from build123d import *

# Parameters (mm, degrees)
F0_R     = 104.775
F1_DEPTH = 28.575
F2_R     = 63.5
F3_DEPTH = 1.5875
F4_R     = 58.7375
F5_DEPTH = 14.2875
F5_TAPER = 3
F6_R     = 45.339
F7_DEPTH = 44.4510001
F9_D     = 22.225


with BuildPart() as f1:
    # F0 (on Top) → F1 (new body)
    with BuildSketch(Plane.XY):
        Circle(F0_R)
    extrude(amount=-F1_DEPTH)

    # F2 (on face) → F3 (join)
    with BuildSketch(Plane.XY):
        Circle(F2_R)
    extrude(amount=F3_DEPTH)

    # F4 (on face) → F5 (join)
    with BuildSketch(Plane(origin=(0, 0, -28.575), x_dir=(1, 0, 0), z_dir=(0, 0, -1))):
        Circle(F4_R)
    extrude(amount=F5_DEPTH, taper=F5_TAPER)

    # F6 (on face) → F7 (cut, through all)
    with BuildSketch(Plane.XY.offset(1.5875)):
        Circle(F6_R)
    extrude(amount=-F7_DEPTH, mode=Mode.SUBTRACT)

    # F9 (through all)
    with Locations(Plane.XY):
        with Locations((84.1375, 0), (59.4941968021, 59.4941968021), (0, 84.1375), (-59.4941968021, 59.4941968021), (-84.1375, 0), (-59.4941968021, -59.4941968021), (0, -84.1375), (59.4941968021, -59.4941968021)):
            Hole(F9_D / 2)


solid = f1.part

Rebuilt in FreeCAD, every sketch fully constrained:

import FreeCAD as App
import Part
import Sketcher
Q = App.Units.Quantity

doc = App.newDocument("Part")
params = doc.addObject("Spreadsheet::Sheet", "Params")
for row, (alias, value) in enumerate([
    ("sketch1_diameter", "8.25 in"),
    ("pad1_length", "1.125 in"),
    ("sketch2_diameter", "5 in"),
    ("pad2_length", "0.0625 in"),
    ("sketch3_diameter", "4.625 in"),
    ("pad3_length", "0.5625 in"),
    ("pad3_taper", "-3 deg"),
    ("sketch4_diameter", "3.57 in"),
    ("sketch5_diameter", "0.875 in"),
    ("hole_diameter", "0.875 in"),
], start=1):
    params.set(f"A{row}", alias)
    params.set(f"B{row}", "=" + value)
    params.setAlias(f"B{row}", alias)

body = doc.addObject("PartDesign::Body", "Body")

# Sketch on XY plane
sketch1 = body.newObject("Sketcher::SketchObject", "Sketch")
sketch1.AttachmentSupport = (doc.getObject("XY_Plane"), [""])
sketch1.MapMode = "FlatFace"
sketch1.addGeometry(Part.Circle(App.Vector(0, 0, 0), App.Vector(0, 0, 1), 105), False)
sketch1.addConstraint(Sketcher.Constraint("Coincident", 0, 3, -1, 1))
sketch1.addConstraint(Sketcher.Constraint("Diameter", 0, Q("8.25 in")))
sketch1.setExpression("Constraints[1]", "Params.sketch1_diameter")
pad1 = body.newObject("PartDesign::Pad", "Pad")
pad1.Profile = sketch1
pad1.setExpression("Length", "Params.pad1_length")
pad1.Reversed = True

# Sketch on XY plane
sketch2 = body.newObject("Sketcher::SketchObject", "Sketch001")
sketch2.AttachmentSupport = (doc.getObject("XY_Plane"), [""])
sketch2.MapMode = "FlatFace"
sketch2.addGeometry(Part.Circle(App.Vector(0, 0, 0), App.Vector(0, 0, 1), 64), False)
sketch2.addConstraint(Sketcher.Constraint("Coincident", 0, 3, -1, 1))
sketch2.addConstraint(Sketcher.Constraint("Diameter", 0, Q("5 in")))
sketch2.setExpression("Constraints[1]", "Params.sketch2_diameter")
pad2 = body.newObject("PartDesign::Pad", "Pad001")
pad2.Profile = sketch2
pad2.setExpression("Length", "Params.pad2_length")

# Sketch on XY plane
sketch3 = body.newObject("Sketcher::SketchObject", "Sketch002")
sketch3.AttachmentSupport = (doc.getObject("XY_Plane"), [""])
sketch3.MapMode = "FlatFace"
sketch3.AttachmentOffset = App.Placement(App.Vector(0, 0, -1.125 * 25.4), App.Rotation())
sketch3.addGeometry(Part.Circle(App.Vector(0, 0, 0), App.Vector(0, 0, 1), 59), False)
sketch3.addConstraint(Sketcher.Constraint("Coincident", 0, 3, -1, 1))
sketch3.addConstraint(Sketcher.Constraint("Diameter", 0, Q("4.625 in")))
sketch3.setExpression("Constraints[1]", "Params.sketch3_diameter")
pad3 = body.newObject("PartDesign::Pad", "Pad002")
pad3.Profile = sketch3
pad3.setExpression("Length", "Params.pad3_length")
pad3.Reversed = True
pad3.setExpression("TaperAngle", "Params.pad3_taper")

# Sketch on XY plane
sketch4 = body.newObject("Sketcher::SketchObject", "Sketch003")
sketch4.AttachmentSupport = (doc.getObject("XY_Plane"), [""])
sketch4.MapMode = "FlatFace"
sketch4.AttachmentOffset = App.Placement(App.Vector(0, 0, 0.0625 * 25.4), App.Rotation())
sketch4.addGeometry(Part.Circle(App.Vector(0, 0, 0), App.Vector(0, 0, 1), 45), False)
sketch4.addConstraint(Sketcher.Constraint("Coincident", 0, 3, -1, 1))
sketch4.addConstraint(Sketcher.Constraint("Diameter", 0, Q("3.57 in")))
sketch4.setExpression("Constraints[1]", "Params.sketch4_diameter")
pocket1 = body.newObject("PartDesign::Pocket", "Pocket")
pocket1.Profile = sketch4
pocket1.Type = "ThroughAll"

# Sketch on XY plane
sketch5 = body.newObject("Sketcher::SketchObject", "Sketch004")
sketch5.AttachmentSupport = (doc.getObject("XY_Plane"), [""])
sketch5.MapMode = "FlatFace"
sketch5.addGeometry(Part.Circle(App.Vector(84, 0, 0), App.Vector(0, 0, 1), 11), False)
sketch5.addGeometry(Part.Circle(App.Vector(59, 59, 0), App.Vector(0, 0, 1), 11), False)
sketch5.addGeometry(Part.Circle(App.Vector(0, 84, 0), App.Vector(0, 0, 1), 11), False)
sketch5.addGeometry(Part.Circle(App.Vector(-59, 59, 0), App.Vector(0, 0, 1), 11), False)
sketch5.addGeometry(Part.Circle(App.Vector(-84, 0, 0), App.Vector(0, 0, 1), 11), False)
sketch5.addGeometry(Part.Circle(App.Vector(-59, -59, 0), App.Vector(0, 0, 1), 11), False)
sketch5.addGeometry(Part.Circle(App.Vector(0, -84, 0), App.Vector(0, 0, 1), 11), False)
sketch5.addGeometry(Part.Circle(App.Vector(59, -59, 0), App.Vector(0, 0, 1), 11), False)
sketch5.addConstraint(Sketcher.Constraint("Equal", 0, 1))
sketch5.addConstraint(Sketcher.Constraint("Equal", 1, 2))
sketch5.addConstraint(Sketcher.Constraint("Equal", 2, 3))
sketch5.addConstraint(Sketcher.Constraint("Equal", 3, 4))
sketch5.addConstraint(Sketcher.Constraint("Equal", 4, 5))
sketch5.addConstraint(Sketcher.Constraint("Equal", 5, 6))
sketch5.addConstraint(Sketcher.Constraint("Equal", 6, 7))
sketch5.addConstraint(Sketcher.Constraint("Symmetric", 0, 3, 4, 3, -1, 1))
sketch5.addConstraint(Sketcher.Constraint("Symmetric", 1, 3, 5, 3, -1, 1))
sketch5.addConstraint(Sketcher.Constraint("Symmetric", 2, 3, 6, 3, -1, 1))
sketch5.addConstraint(Sketcher.Constraint("Symmetric", 3, 3, 7, 3, -1, 1))
sketch5.addConstraint(Sketcher.Constraint("Symmetric", 1, 3, 3, 3, -2))
sketch5.addConstraint(Sketcher.Constraint("PointOnObject", 0, 3, -1))
sketch5.addConstraint(Sketcher.Constraint("PointOnObject", 2, 3, -2))
sketch5.addConstraint(Sketcher.Constraint("Diameter", 0, Q("0.875 in")))
sketch5.addConstraint(Sketcher.Constraint("DistanceX", -1, 1, 0, 3, Q("3.3125 in")))
sketch5.addConstraint(Sketcher.Constraint("DistanceY", -1, 1, 2, 3, Q("3.3125 in")))
sketch5.addConstraint(Sketcher.Constraint("DistanceX", -1, 1, 1, 3, Q("59.494197 mm")))
sketch5.addConstraint(Sketcher.Constraint("DistanceY", -1, 1, 1, 3, Q("59.494197 mm")))
sketch5.setExpression("Constraints[14]", "Params.sketch5_diameter")
doc.recompute()
hole = body.newObject("PartDesign::Hole", "Hole")
hole.Profile = sketch5
hole.ThreadType = "None"
hole.setExpression("Diameter", "Params.hole_diameter")
hole.DepthType = "ThroughAll"

doc.recompute()
